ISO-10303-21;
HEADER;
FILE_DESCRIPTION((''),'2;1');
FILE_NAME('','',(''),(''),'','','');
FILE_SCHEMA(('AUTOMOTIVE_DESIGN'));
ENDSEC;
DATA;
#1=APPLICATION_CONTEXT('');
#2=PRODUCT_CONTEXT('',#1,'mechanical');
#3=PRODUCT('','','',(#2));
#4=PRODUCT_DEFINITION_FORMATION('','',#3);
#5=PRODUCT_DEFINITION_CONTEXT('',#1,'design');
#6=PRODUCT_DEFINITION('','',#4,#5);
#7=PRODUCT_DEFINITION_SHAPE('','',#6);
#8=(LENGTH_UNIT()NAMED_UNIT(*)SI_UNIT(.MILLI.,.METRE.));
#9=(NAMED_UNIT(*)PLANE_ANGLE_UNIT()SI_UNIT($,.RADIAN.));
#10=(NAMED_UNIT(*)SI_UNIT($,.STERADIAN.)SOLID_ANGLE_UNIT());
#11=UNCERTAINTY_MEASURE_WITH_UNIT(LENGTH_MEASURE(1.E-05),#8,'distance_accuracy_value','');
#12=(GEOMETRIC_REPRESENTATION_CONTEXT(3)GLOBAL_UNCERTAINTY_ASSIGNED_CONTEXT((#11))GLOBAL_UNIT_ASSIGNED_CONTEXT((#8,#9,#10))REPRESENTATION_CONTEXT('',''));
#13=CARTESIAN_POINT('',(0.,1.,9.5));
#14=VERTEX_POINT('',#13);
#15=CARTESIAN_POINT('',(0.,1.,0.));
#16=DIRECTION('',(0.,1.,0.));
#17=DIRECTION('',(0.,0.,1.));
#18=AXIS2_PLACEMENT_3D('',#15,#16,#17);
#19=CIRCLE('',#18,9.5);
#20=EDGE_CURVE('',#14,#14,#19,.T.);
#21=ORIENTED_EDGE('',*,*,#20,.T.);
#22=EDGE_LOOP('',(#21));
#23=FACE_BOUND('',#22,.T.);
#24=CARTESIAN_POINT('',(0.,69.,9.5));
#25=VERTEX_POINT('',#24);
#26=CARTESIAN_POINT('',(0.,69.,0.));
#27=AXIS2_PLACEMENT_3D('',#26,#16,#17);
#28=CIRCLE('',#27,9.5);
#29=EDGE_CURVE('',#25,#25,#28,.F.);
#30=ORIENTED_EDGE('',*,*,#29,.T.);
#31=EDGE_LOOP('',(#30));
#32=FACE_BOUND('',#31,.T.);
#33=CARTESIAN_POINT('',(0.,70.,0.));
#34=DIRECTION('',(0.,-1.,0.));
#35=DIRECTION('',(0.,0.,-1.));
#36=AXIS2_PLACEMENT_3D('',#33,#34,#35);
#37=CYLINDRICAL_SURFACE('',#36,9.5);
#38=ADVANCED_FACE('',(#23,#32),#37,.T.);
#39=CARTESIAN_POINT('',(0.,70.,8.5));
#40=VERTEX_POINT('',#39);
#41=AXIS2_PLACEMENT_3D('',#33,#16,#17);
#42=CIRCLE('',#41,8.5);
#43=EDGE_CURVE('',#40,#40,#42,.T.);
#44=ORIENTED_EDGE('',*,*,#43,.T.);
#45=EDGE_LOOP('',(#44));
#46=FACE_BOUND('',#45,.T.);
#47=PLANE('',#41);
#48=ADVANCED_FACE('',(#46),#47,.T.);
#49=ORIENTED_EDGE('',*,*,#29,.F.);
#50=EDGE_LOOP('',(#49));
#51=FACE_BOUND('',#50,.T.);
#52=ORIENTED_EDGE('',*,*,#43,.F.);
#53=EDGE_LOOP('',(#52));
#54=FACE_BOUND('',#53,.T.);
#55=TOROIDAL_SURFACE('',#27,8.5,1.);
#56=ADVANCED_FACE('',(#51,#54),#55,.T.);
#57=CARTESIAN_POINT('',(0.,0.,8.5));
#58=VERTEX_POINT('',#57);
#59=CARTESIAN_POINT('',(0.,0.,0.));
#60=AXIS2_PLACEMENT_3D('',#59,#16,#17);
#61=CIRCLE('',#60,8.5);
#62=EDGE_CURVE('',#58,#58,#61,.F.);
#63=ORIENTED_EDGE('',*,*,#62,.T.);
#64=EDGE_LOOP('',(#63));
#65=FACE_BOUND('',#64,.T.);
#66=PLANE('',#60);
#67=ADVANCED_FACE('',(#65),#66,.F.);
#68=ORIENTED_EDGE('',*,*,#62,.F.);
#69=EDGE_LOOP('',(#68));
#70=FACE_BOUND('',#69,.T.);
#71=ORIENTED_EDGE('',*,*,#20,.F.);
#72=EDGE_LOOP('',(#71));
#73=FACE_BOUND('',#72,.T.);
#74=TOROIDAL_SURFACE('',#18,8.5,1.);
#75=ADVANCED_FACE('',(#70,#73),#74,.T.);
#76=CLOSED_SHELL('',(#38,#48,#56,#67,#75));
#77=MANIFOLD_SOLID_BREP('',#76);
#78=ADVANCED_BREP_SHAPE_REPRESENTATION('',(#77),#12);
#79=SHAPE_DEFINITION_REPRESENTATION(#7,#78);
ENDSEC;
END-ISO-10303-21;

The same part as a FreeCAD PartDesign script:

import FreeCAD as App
import Part
import Sketcher

V = App.Vector
Q = App.Units.Quantity


def edges_at(feature, points):
    """Names of the edges that pass closest to the given points."""
    edges = feature.Shape.Edges
    near = lambda p: min(range(len(edges)), key=lambda i: edges[i].distToShape(Part.Vertex(*p))[0])
    return sorted({f"Edge{near(p) + 1}" for p in points})

doc = App.newDocument("Part")
body = doc.addObject("PartDesign::Body", "Body")

# Sketch on XZ plane
sketch1 = doc.addObject("Sketcher::SketchObject", "Sketch")
body.addObject(sketch1)
sketch1.AttachmentSupport = (doc.XZ_Plane, [""])
sketch1.MapMode = "FlatFace"
sketch1.addGeometry(Part.Circle(V(0, 0, 0), V(0, 0, 1), 10), False)
sketch1.addConstraint([
    Sketcher.Constraint("Coincident", 0, 3, -1, 1),
    Sketcher.Constraint("Diameter", 0, Q("19 mm")),
])
pad1 = doc.addObject("PartDesign::Pad", "Pad")
body.addObject(pad1)
pad1.Profile = sketch1
pad1.Length = 70
pad1.Reversed = True
doc.recompute()

fillet = doc.addObject("PartDesign::Fillet", "Fillet")
body.addObject(fillet)
fillet.Base = (pad1, edges_at(pad1, [(0, 0, -9.5), (0, 70, -9.5)]))
fillet.Radius = 1

doc.recompute()
